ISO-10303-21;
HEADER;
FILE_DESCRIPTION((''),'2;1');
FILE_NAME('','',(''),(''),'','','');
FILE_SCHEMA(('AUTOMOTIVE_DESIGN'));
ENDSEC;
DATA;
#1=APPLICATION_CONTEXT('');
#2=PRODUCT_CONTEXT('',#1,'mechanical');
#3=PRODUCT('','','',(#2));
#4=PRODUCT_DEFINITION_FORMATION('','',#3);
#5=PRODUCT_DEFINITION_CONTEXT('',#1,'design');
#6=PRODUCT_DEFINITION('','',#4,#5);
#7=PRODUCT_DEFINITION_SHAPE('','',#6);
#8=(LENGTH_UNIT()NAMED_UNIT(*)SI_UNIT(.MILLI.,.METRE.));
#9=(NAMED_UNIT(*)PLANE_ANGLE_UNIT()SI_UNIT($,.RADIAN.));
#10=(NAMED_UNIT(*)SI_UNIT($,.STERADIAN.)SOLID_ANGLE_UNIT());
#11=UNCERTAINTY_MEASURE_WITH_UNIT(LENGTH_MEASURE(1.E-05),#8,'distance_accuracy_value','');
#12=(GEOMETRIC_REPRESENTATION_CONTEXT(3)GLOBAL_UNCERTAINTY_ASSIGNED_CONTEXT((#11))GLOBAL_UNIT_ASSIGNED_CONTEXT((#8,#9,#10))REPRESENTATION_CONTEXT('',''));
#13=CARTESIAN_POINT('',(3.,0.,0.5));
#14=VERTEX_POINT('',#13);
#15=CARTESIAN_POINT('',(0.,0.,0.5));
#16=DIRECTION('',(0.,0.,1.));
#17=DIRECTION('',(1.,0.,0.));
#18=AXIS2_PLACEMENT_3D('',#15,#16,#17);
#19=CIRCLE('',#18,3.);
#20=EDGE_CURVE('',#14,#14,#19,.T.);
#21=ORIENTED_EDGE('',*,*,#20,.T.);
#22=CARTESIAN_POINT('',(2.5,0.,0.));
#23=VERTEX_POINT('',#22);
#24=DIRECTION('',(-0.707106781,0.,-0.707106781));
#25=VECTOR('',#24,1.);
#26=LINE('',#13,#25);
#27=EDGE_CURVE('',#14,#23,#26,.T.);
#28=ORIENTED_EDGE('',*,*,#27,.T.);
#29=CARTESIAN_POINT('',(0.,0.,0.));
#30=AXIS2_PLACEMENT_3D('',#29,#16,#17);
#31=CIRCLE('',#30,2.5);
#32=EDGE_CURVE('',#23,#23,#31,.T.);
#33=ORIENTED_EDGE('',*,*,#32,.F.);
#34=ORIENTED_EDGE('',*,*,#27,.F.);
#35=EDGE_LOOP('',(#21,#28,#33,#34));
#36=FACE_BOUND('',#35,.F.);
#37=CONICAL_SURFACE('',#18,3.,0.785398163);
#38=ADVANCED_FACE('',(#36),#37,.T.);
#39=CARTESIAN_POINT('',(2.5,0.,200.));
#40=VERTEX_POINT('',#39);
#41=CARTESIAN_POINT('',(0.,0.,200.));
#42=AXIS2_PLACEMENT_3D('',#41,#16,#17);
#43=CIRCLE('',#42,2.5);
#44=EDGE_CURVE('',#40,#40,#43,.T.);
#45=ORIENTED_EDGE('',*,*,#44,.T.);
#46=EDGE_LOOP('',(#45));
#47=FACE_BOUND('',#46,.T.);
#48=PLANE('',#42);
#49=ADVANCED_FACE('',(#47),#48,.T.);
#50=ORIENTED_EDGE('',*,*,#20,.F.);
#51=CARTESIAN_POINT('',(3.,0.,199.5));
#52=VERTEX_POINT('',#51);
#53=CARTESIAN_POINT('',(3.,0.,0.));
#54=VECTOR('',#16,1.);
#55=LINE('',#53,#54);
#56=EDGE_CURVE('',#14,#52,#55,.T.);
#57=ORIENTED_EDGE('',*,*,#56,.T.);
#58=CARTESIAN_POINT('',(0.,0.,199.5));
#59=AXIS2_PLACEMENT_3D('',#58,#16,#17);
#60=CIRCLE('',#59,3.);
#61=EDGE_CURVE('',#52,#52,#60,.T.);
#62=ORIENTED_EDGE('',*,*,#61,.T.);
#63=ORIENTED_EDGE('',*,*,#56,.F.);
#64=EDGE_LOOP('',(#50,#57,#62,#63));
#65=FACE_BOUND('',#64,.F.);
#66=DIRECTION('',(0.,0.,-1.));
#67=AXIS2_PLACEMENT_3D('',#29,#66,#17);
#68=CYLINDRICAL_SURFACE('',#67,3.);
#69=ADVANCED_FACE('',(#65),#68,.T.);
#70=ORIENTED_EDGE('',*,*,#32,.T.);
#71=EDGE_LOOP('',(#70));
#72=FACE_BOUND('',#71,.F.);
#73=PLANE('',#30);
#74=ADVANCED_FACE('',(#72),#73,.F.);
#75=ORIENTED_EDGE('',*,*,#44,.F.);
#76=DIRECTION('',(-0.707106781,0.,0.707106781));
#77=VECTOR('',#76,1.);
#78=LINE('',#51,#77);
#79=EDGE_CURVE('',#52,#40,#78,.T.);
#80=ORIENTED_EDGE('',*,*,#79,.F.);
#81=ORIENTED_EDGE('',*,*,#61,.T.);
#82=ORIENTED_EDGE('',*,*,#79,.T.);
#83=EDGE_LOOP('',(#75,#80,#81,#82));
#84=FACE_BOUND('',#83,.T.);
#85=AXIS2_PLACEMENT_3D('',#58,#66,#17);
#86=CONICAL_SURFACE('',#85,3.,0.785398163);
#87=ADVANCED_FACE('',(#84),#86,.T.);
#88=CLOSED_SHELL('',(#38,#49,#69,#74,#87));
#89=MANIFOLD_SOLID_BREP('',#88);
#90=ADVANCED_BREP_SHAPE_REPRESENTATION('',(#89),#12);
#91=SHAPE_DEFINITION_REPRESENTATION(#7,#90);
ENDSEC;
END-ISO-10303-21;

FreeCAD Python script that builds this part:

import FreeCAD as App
import Part
import Sketcher


def edges_at(feature, points):
    """Names of the edges that pass closest to the given points."""
    edges = feature.Shape.Edges
    near = lambda p: min(range(len(edges)), key=lambda i: edges[i].distToShape(Part.Vertex(*p))[0])
    return sorted({f"Edge{near(p) + 1}" for p in points})

doc = App.newDocument("Part")
body = doc.addObject("PartDesign::Body", "Body")

# Sketch on XY plane
sketch1 = body.newObject("Sketcher::SketchObject", "Sketch")
sketch1.AttachmentSupport = (doc.getObject("XY_Plane"), [""])
sketch1.MapMode = "FlatFace"
sketch1.addGeometry(Part.Circle(App.Vector(0, 0, 0), App.Vector(0, 0, 1), 3), False)
sketch1.addConstraint([
    Sketcher.Constraint("Coincident", 0, 3, -1, 1),
    Sketcher.Constraint("Diameter", 0, 6.0),
])
pad1 = body.newObject("PartDesign::Pad", "Pad")
pad1.Profile = sketch1
pad1.Length = 200
doc.recompute()

chamfer = body.newObject("PartDesign::Chamfer", "Chamfer")
chamfer.Base = (pad1, edges_at(pad1, [(-3, 0, 200), (-3, 0, 0)]))
chamfer.Size = 0.5

doc.recompute()
